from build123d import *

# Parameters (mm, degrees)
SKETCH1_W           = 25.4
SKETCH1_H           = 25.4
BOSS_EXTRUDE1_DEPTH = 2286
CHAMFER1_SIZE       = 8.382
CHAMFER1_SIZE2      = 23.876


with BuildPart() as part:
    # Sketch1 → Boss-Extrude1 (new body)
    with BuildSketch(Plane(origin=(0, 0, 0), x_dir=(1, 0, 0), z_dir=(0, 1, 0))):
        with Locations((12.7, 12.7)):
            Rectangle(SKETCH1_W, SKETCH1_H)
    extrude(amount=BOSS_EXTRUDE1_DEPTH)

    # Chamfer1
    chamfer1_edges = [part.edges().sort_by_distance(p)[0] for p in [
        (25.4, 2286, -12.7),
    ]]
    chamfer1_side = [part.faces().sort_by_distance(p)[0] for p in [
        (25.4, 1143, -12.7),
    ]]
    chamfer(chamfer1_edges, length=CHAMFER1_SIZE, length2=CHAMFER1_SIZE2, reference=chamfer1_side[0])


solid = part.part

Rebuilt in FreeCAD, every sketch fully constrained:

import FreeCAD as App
import Part
import Sketcher

V = App.Vector
Q = App.Units.Quantity


def edges_at(feature, points):
    """Names of the edges that pass closest to the given points."""
    edges = feature.Shape.Edges
    near = lambda p: min(range(len(edges)), key=lambda i: edges[i].distToShape(Part.Vertex(*p))[0])
    return sorted({f"Edge{near(p) + 1}" for p in points})


def add_polygon(sketch, points):
    """Adds a closed chain of lines whose ends are joined by coincident constraints."""
    first, n = sketch.GeometryCount, len(points)
    for a, b in zip(points, points[1:] + points[:1]):
        sketch.addGeometry(Part.LineSegment(App.Vector(*a, 0), App.Vector(*b, 0)), False)
    for i in range(n):
        sketch.addConstraint(Sketcher.Constraint("Coincident", first + i, 2, first + (i + 1) % n, 1))

doc = App.newDocument("Part")
body = doc.addObject("PartDesign::Body", "Body")

sketch1 = body.newObject("Sketcher::SketchObject", "Sketch")
sketch1.AttachmentSupport = (doc.getObject("XZ_Plane"), [""])
sketch1.MapMode = "FlatFace"
add_polygon(sketch1, [(0, -25.4), (0, 0), (25.4, 0), (25.4, -25.4)])
sketch1.addConstraint(Sketcher.Constraint("Vertical", 0))
sketch1.addConstraint(Sketcher.Constraint("Horizontal", 1))
sketch1.addConstraint(Sketcher.Constraint("Vertical", 2))
sketch1.addConstraint(Sketcher.Constraint("Horizontal", 3))
sketch1.addConstraint(Sketcher.Constraint("Coincident", 0, 2, -1, 1))
sketch1.addConstraint(Sketcher.Constraint("Equal", 3, 0))
sketch1.addConstraint(Sketcher.Constraint("DistanceX", 1, 1, 1, 2, Q("1 in")))
pad1 = body.newObject("PartDesign::Pad", "Pad")
pad1.Profile = sketch1
pad1.Length = Q("90 in")
pad1.Reversed = True
doc.recompute()

chamfer = body.newObject("PartDesign::Chamfer", "Chamfer")
chamfer.Base = (pad1, edges_at(pad1, [(25.4, 2286, -12.7)]))
chamfer.ChamferType = "Two distances"
chamfer.Size = Q("0.33 in")
chamfer.Size2 = Q("0.94 in")

doc.recompute()
